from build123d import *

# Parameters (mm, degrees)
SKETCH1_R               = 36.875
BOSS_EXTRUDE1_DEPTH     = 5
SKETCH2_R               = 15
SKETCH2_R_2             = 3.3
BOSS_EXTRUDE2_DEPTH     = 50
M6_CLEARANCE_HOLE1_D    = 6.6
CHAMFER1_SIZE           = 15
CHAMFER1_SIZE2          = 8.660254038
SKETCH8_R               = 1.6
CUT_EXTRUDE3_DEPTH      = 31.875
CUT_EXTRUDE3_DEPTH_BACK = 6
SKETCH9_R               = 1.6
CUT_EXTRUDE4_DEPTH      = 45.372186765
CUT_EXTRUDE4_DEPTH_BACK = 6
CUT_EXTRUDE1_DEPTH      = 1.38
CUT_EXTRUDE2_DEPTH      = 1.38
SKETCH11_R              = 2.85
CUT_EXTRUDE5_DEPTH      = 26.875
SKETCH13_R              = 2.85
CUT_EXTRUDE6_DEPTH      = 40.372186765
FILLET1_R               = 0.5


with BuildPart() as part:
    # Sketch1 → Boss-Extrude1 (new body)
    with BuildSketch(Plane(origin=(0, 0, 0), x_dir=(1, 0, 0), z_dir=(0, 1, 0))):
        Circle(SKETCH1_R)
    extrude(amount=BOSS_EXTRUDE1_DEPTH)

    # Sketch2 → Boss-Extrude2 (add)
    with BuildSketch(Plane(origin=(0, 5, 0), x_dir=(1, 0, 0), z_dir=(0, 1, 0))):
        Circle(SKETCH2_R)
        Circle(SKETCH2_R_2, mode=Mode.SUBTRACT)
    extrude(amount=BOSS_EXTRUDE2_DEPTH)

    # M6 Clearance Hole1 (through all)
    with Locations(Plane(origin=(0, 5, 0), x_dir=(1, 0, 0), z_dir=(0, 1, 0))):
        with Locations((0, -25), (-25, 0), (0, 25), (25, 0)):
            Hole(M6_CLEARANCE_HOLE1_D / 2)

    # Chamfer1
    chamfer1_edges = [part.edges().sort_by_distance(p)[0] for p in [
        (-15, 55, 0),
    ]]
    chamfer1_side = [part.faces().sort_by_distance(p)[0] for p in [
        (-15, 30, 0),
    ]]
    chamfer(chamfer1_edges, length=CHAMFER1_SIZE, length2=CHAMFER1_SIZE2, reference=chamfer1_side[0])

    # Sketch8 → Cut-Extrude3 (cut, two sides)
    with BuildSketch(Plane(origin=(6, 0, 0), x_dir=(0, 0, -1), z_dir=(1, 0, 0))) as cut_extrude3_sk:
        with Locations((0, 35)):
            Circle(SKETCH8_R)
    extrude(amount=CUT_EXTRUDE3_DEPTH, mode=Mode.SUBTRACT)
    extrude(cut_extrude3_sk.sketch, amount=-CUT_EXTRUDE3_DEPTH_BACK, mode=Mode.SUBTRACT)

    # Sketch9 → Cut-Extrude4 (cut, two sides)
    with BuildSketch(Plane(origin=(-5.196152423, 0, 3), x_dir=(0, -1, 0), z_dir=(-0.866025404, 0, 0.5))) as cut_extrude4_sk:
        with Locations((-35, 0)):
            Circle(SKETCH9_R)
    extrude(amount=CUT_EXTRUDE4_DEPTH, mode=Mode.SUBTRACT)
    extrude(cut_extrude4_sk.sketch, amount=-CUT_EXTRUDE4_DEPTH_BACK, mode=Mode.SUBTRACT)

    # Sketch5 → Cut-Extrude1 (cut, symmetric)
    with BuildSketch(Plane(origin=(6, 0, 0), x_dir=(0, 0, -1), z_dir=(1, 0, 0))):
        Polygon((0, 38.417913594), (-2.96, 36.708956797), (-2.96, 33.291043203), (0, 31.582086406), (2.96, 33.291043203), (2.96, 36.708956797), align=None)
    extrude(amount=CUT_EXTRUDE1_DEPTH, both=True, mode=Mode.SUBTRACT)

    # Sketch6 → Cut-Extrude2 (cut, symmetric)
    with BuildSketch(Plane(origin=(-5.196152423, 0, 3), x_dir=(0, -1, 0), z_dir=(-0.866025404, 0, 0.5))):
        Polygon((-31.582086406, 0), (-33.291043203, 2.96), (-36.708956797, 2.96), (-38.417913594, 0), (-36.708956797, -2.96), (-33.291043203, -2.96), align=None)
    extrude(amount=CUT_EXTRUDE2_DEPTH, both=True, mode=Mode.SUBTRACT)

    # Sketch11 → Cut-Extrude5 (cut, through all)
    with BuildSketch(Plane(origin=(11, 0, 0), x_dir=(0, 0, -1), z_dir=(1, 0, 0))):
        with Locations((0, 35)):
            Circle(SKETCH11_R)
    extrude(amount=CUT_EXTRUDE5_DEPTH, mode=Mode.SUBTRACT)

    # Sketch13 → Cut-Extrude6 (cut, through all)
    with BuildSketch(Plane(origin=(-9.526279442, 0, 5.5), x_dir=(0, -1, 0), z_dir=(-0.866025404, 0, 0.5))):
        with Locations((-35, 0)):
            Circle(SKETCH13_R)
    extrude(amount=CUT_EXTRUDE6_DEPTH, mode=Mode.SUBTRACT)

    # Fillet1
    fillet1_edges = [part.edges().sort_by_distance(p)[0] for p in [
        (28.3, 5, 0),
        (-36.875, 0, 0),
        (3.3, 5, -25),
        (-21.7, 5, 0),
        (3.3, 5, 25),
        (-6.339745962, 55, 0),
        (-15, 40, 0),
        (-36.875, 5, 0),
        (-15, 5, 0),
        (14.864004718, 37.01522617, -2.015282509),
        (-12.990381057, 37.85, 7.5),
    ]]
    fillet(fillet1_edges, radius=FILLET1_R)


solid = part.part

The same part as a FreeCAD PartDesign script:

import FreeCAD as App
import Part
import Sketcher

V = App.Vector
Q = App.Units.Quantity


def edges_at(feature, points):
    """Names of the edges that pass closest to the given points."""
    edges = feature.Shape.Edges
    near = lambda p: min(range(len(edges)), key=lambda i: edges[i].distToShape(Part.Vertex(*p))[0])
    return sorted({f"Edge{near(p) + 1}" for p in points})

doc = App.newDocument("Part")
body = doc.addObject("PartDesign::Body", "Body")

sketch1 = doc.addObject("Sketcher::SketchObject", "Sketch")
body.addObject(sketch1)
sketch1.AttachmentSupport = (doc.XZ_Plane, [""])
sketch1.MapMode = "FlatFace"
sketch1.addGeometry(Part.Circle(V(0, 0, 0), V(0, 0, 1), 37), False)
sketch1.addConstraint([
    Sketcher.Constraint("Coincident", 0, 3, -1, 1),
    Sketcher.Constraint("Diameter", 0, Q("73.75 mm")),
])
pad1 = doc.addObject("PartDesign::Pad", "Pad")
body.addObject(pad1)
pad1.Profile = sketch1
pad1.Length = 5
pad1.Reversed = True

sketch2 = doc.addObject("Sketcher::SketchObject", "Sketch001")
body.addObject(sketch2)
sketch2.AttachmentSupport = (doc.XZ_Plane, [""])
sketch2.MapMode = "FlatFace"
sketch2.AttachmentOffset = App.Placement(V(0, 0, -5), App.Rotation())
sketch2.addGeometry([
    Part.Circle(V(0, 0, 0), V(0, 0, 1), 15),
    Part.Circle(V(0, 0, 0), V(0, 0, 1), 3.3),
], False)
sketch2.addConstraint([
    Sketcher.Constraint("Coincident", 0, 3, -1, 1),
    Sketcher.Constraint("Coincident", 1, 3, -1, 1),
    Sketcher.Constraint("Diameter", 0, Q("30 mm")),
    Sketcher.Constraint("Diameter", 1, Q("6.6 mm")),
])
pad2 = doc.addObject("PartDesign::Pad", "Pad001")
body.addObject(pad2)
pad2.Profile = sketch2
pad2.Length = 50
pad2.Reversed = True

sketch3 = doc.addObject("Sketcher::SketchObject", "Sketch002")
body.addObject(sketch3)
sketch3.AttachmentSupport = (doc.XZ_Plane, [""])
sketch3.MapMode = "FlatFace"
sketch3.AttachmentOffset = App.Placement(V(0, 0, -5), App.Rotation())
sketch3.addGeometry([
    Part.Circle(V(0, 25, 0), V(0, 0, 1), 3.3),
    Part.Circle(V(-25, 0, 0), V(0, 0, 1), 3.3),
    Part.Circle(V(0, -25, 0), V(0, 0, 1), 3.3),
    Part.Circle(V(25, 0, 0), V(0, 0, 1), 3.3),
], False)
sketch3.addConstraint([
    Sketcher.Constraint("Equal", 0, 1),
    Sketcher.Constraint("Equal", 1, 2),
    Sketcher.Constraint("Equal", 2, 3),
    Sketcher.Constraint("Symmetric", 0, 3, 2, 3, -1, 1),
    Sketcher.Constraint("Symmetric", 1, 3, 3, 3, -1, 1),
    Sketcher.Constraint("PointOnObject", 0, 3, -2),
    Sketcher.Constraint("PointOnObject", 1, 3, -1),
    Sketcher.Constraint("Diameter", 0, Q("6.6 mm")),
    Sketcher.Constraint("DistanceY", -1, 1, 0, 3, Q("25 mm")),
    Sketcher.Constraint("DistanceX", 1, 3, -1, 1, Q("25 mm")),
])
doc.recompute()
hole = doc.addObject("PartDesign::Hole", "Hole")
body.addObject(hole)
hole.Profile = sketch3
hole.ThreadType = "None"
hole.Diameter = 6.6
hole.DepthType = "ThroughAll"
hole.Reversed = True
doc.recompute()

chamfer = doc.addObject("PartDesign::Chamfer", "Chamfer")
body.addObject(chamfer)
chamfer.Base = (hole, edges_at(hole, [(-15, 55, 0)]))
chamfer.ChamferType = "Two distances"
chamfer.Size = 15
chamfer.Size2 = 8.660254

sketch4 = doc.addObject("Sketcher::SketchObject", "Sketch003")
body.addObject(sketch4)
sketch4.AttachmentSupport = (doc.YZ_Plane, [""])
sketch4.MapMode = "FlatFace"
sketch4.AttachmentOffset = App.Placement(V(0, 0, 6), App.Rotation())
sketch4.addGeometry(Part.Circle(V(35, 0, 0), V(0, 0, 1), 1.6), False)
sketch4.addConstraint([
    Sketcher.Constraint("PointOnObject", 0, 3, -1),
    Sketcher.Constraint("Diameter", 0, Q("3.2 mm")),
    Sketcher.Constraint("DistanceX", -1, 1, 0, 3, Q("35 mm")),
])
pocket1 = doc.addObject("PartDesign::Pocket", "Pocket")
body.addObject(pocket1)
pocket1.Profile = sketch4
pocket1.Type = "TwoLengths"
pocket1.Length = 31.875
pocket1.Length2 = 6
pocket1.Reversed = True

sketch5 = doc.addObject("Sketcher::SketchObject", "Sketch004")
body.addObject(sketch5)
sketch5.Placement = App.Placement(V(-5.196152, 0, 3), App.Rotation(V(0, -1, 0), V(0.5, 0, 0.866025404), V(-0.866025404, 0, 0.5), "ZXY"))
sketch5.addGeometry(Part.Circle(V(-35, 0, 0), V(0, 0, 1), 1.6), False)
sketch5.addConstraint([
    Sketcher.Constraint("PointOnObject", 0, 3, -1),
    Sketcher.Constraint("Diameter", 0, Q("3.2 mm")),
    Sketcher.Constraint("DistanceX", 0, 3, -1, 1, Q("35 mm")),
])
pocket2 = doc.addObject("PartDesign::Pocket", "Pocket001")
body.addObject(pocket2)
pocket2.Profile = sketch5
pocket2.Type = "TwoLengths"
pocket2.Length = 45.372187
pocket2.Length2 = 6
pocket2.Reversed = True

sketch6 = doc.addObject("Sketcher::SketchObject", "Sketch005")
body.addObject(sketch6)
sketch6.AttachmentSupport = (doc.YZ_Plane, [""])
sketch6.MapMode = "FlatFace"
sketch6.AttachmentOffset = App.Placement(V(0, 0, 6), App.Rotation())
sketch6.addGeometry([
    Part.LineSegment(V(38.4, 0, 0), V(36.7, 3, 0)),
    Part.LineSegment(V(36.7, 3, 0), V(33.3, 3, 0)),
    Part.LineSegment(V(33.3, 3, 0), V(31.6, 0, 0)),
    Part.LineSegment(V(31.6, 0, 0), V(33.3, -3, 0)),
    Part.LineSegment(V(33.3, -3, 0), V(36.7, -3, 0)),
    Part.LineSegment(V(36.7, -3, 0), V(38.4, 0, 0)),
], False)
sketch6.addConstraint([
    Sketcher.Constraint("Coincident", 0, 2, 1, 1),
    Sketcher.Constraint("Coincident", 1, 2, 2, 1),
    Sketcher.Constraint("Coincident", 2, 2, 3, 1),
    Sketcher.Constraint("Coincident", 3, 2, 4, 1),
    Sketcher.Constraint("Coincident", 4, 2, 5, 1),
    Sketcher.Constraint("Coincident", 5, 2, 0, 1),
    Sketcher.Constraint("Horizontal", 1),
    Sketcher.Constraint("Horizontal", 4),
    Sketcher.Constraint("Symmetric", 1, 2, 3, 2, -1),
    Sketcher.Constraint("PointOnObject", 2, 2, -1),
    Sketcher.Constraint("PointOnObject", 5, 2, -1),
    Sketcher.Constraint("Parallel", 0, 3),
    Sketcher.Constraint("Parallel", 2, 5),
    Sketcher.Constraint("Angle", 0, Q("120 deg")),
    Sketcher.Constraint("DistanceY", -1, 1, 0, 2, Q("2.96 mm")),
    Sketcher.Constraint("DistanceX", 1, 2, 1, 1, Q("3.417914 mm")),
    Sketcher.Constraint("DistanceX", -1, 1, 0, 2, Q("36.708957 mm")),
])
pocket3 = doc.addObject("PartDesign::Pocket", "Pocket002")
body.addObject(pocket3)
pocket3.Profile = sketch6
pocket3.Length = 2.76
pocket3.Midplane = True

sketch7 = doc.addObject("Sketcher::SketchObject", "Sketch006")
body.addObject(sketch7)
sketch7.Placement = App.Placement(V(-5.196152, 0, 3), App.Rotation(V(0, -1, 0), V(0.5, 0, 0.866025404), V(-0.866025404, 0, 0.5), "ZXY"))
sketch7.addGeometry([
    Part.LineSegment(V(-31.6, 0, 0), V(-33.3, 3, 0)),
    Part.LineSegment(V(-33.3, 3, 0), V(-36.7, 3, 0)),
    Part.LineSegment(V(-36.7, 3, 0), V(-38.4, 0, 0)),
    Part.LineSegment(V(-38.4, 0, 0), V(-36.7, -3, 0)),
    Part.LineSegment(V(-36.7, -3, 0), V(-33.3, -3, 0)),
    Part.LineSegment(V(-33.3, -3, 0), V(-31.6, 0, 0)),
], False)
sketch7.addConstraint([
    Sketcher.Constraint("Coincident", 0, 2, 1, 1),
    Sketcher.Constraint("Coincident", 1, 2, 2, 1),
    Sketcher.Constraint("Coincident", 2, 2, 3, 1),
    Sketcher.Constraint("Coincident", 3, 2, 4, 1),
    Sketcher.Constraint("Coincident", 4, 2, 5, 1),
    Sketcher.Constraint("Coincident", 5, 2, 0, 1),
    Sketcher.Constraint("Horizontal", 1),
    Sketcher.Constraint("Horizontal", 4),
    Sketcher.Constraint("Symmetric", 1, 2, 3, 2, -1),
    Sketcher.Constraint("PointOnObject", 2, 2, -1),
    Sketcher.Constraint("PointOnObject", 5, 2, -1),
    Sketcher.Constraint("Parallel", 0, 3),
    Sketcher.Constraint("Parallel", 2, 5),
    Sketcher.Constraint("Angle", 0, Q("120 deg")),
    Sketcher.Constraint("DistanceY", -1, 1, 0, 2, Q("2.96 mm")),
    Sketcher.Constraint("DistanceX", 1, 2, 1, 1, Q("3.417914 mm")),
    Sketcher.Constraint("DistanceX", 0, 2, -1, 1, Q("33.291043 mm")),
])
pocket4 = doc.addObject("PartDesign::Pocket", "Pocket003")
body.addObject(pocket4)
pocket4.Profile = sketch7
pocket4.Length = 2.76
pocket4.Midplane = True

sketch8 = doc.addObject("Sketcher::SketchObject", "Sketch007")
body.addObject(sketch8)
sketch8.AttachmentSupport = (doc.YZ_Plane, [""])
sketch8.MapMode = "FlatFace"
sketch8.AttachmentOffset = App.Placement(V(0, 0, 11), App.Rotation())
sketch8.addGeometry(Part.Circle(V(35, 0, 0), V(0, 0, 1), 2.9), False)
sketch8.addConstraint([
    Sketcher.Constraint("PointOnObject", 0, 3, -1),
    Sketcher.Constraint("Diameter", 0, Q("5.7 mm")),
    Sketcher.Constraint("DistanceX", -1, 1, 0, 3, Q("35 mm")),
])
pocket5 = doc.addObject("PartDesign::Pocket", "Pocket004")
body.addObject(pocket5)
pocket5.Profile = sketch8
pocket5.Type = "ThroughAll"
pocket5.Reversed = True

sketch9 = doc.addObject("Sketcher::SketchObject", "Sketch008")
body.addObject(sketch9)
sketch9.Placement = App.Placement(V(-9.526279, 0, 5.5), App.Rotation(V(0, -1, 0), V(0.5, 0, 0.866025404), V(-0.866025404, 0, 0.5), "ZXY"))
sketch9.addGeometry(Part.Circle(V(-35, 0, 0), V(0, 0, 1), 2.9), False)
sketch9.addConstraint([
    Sketcher.Constraint("PointOnObject", 0, 3, -1),
    Sketcher.Constraint("Diameter", 0, Q("5.7 mm")),
    Sketcher.Constraint("DistanceX", 0, 3, -1, 1, Q("35 mm")),
])
pocket6 = doc.addObject("PartDesign::Pocket", "Pocket005")
body.addObject(pocket6)
pocket6.Profile = sketch9
pocket6.Type = "ThroughAll"
pocket6.Reversed = True
doc.recompute()

fillet = doc.addObject("PartDesign::Fillet", "Fillet")
body.addObject(fillet)
fillet.Base = (pocket6, edges_at(pocket6, [
    (28.3, 5, 0),
    (-36.875, 0, 0),
    (3.3, 5, -25),
    (-21.7, 5, 0),
    (3.3, 5, 25),
    (-6.34, 55, 0),
    (-15, 40, 0),
    (-36.875, 5, 0),
    (-15, 5, 0),
    (14.864, 37.015, -2.015),
    (-12.99, 37.85, 7.5),
]))
fillet.Radius = 0.5

doc.recompute()
